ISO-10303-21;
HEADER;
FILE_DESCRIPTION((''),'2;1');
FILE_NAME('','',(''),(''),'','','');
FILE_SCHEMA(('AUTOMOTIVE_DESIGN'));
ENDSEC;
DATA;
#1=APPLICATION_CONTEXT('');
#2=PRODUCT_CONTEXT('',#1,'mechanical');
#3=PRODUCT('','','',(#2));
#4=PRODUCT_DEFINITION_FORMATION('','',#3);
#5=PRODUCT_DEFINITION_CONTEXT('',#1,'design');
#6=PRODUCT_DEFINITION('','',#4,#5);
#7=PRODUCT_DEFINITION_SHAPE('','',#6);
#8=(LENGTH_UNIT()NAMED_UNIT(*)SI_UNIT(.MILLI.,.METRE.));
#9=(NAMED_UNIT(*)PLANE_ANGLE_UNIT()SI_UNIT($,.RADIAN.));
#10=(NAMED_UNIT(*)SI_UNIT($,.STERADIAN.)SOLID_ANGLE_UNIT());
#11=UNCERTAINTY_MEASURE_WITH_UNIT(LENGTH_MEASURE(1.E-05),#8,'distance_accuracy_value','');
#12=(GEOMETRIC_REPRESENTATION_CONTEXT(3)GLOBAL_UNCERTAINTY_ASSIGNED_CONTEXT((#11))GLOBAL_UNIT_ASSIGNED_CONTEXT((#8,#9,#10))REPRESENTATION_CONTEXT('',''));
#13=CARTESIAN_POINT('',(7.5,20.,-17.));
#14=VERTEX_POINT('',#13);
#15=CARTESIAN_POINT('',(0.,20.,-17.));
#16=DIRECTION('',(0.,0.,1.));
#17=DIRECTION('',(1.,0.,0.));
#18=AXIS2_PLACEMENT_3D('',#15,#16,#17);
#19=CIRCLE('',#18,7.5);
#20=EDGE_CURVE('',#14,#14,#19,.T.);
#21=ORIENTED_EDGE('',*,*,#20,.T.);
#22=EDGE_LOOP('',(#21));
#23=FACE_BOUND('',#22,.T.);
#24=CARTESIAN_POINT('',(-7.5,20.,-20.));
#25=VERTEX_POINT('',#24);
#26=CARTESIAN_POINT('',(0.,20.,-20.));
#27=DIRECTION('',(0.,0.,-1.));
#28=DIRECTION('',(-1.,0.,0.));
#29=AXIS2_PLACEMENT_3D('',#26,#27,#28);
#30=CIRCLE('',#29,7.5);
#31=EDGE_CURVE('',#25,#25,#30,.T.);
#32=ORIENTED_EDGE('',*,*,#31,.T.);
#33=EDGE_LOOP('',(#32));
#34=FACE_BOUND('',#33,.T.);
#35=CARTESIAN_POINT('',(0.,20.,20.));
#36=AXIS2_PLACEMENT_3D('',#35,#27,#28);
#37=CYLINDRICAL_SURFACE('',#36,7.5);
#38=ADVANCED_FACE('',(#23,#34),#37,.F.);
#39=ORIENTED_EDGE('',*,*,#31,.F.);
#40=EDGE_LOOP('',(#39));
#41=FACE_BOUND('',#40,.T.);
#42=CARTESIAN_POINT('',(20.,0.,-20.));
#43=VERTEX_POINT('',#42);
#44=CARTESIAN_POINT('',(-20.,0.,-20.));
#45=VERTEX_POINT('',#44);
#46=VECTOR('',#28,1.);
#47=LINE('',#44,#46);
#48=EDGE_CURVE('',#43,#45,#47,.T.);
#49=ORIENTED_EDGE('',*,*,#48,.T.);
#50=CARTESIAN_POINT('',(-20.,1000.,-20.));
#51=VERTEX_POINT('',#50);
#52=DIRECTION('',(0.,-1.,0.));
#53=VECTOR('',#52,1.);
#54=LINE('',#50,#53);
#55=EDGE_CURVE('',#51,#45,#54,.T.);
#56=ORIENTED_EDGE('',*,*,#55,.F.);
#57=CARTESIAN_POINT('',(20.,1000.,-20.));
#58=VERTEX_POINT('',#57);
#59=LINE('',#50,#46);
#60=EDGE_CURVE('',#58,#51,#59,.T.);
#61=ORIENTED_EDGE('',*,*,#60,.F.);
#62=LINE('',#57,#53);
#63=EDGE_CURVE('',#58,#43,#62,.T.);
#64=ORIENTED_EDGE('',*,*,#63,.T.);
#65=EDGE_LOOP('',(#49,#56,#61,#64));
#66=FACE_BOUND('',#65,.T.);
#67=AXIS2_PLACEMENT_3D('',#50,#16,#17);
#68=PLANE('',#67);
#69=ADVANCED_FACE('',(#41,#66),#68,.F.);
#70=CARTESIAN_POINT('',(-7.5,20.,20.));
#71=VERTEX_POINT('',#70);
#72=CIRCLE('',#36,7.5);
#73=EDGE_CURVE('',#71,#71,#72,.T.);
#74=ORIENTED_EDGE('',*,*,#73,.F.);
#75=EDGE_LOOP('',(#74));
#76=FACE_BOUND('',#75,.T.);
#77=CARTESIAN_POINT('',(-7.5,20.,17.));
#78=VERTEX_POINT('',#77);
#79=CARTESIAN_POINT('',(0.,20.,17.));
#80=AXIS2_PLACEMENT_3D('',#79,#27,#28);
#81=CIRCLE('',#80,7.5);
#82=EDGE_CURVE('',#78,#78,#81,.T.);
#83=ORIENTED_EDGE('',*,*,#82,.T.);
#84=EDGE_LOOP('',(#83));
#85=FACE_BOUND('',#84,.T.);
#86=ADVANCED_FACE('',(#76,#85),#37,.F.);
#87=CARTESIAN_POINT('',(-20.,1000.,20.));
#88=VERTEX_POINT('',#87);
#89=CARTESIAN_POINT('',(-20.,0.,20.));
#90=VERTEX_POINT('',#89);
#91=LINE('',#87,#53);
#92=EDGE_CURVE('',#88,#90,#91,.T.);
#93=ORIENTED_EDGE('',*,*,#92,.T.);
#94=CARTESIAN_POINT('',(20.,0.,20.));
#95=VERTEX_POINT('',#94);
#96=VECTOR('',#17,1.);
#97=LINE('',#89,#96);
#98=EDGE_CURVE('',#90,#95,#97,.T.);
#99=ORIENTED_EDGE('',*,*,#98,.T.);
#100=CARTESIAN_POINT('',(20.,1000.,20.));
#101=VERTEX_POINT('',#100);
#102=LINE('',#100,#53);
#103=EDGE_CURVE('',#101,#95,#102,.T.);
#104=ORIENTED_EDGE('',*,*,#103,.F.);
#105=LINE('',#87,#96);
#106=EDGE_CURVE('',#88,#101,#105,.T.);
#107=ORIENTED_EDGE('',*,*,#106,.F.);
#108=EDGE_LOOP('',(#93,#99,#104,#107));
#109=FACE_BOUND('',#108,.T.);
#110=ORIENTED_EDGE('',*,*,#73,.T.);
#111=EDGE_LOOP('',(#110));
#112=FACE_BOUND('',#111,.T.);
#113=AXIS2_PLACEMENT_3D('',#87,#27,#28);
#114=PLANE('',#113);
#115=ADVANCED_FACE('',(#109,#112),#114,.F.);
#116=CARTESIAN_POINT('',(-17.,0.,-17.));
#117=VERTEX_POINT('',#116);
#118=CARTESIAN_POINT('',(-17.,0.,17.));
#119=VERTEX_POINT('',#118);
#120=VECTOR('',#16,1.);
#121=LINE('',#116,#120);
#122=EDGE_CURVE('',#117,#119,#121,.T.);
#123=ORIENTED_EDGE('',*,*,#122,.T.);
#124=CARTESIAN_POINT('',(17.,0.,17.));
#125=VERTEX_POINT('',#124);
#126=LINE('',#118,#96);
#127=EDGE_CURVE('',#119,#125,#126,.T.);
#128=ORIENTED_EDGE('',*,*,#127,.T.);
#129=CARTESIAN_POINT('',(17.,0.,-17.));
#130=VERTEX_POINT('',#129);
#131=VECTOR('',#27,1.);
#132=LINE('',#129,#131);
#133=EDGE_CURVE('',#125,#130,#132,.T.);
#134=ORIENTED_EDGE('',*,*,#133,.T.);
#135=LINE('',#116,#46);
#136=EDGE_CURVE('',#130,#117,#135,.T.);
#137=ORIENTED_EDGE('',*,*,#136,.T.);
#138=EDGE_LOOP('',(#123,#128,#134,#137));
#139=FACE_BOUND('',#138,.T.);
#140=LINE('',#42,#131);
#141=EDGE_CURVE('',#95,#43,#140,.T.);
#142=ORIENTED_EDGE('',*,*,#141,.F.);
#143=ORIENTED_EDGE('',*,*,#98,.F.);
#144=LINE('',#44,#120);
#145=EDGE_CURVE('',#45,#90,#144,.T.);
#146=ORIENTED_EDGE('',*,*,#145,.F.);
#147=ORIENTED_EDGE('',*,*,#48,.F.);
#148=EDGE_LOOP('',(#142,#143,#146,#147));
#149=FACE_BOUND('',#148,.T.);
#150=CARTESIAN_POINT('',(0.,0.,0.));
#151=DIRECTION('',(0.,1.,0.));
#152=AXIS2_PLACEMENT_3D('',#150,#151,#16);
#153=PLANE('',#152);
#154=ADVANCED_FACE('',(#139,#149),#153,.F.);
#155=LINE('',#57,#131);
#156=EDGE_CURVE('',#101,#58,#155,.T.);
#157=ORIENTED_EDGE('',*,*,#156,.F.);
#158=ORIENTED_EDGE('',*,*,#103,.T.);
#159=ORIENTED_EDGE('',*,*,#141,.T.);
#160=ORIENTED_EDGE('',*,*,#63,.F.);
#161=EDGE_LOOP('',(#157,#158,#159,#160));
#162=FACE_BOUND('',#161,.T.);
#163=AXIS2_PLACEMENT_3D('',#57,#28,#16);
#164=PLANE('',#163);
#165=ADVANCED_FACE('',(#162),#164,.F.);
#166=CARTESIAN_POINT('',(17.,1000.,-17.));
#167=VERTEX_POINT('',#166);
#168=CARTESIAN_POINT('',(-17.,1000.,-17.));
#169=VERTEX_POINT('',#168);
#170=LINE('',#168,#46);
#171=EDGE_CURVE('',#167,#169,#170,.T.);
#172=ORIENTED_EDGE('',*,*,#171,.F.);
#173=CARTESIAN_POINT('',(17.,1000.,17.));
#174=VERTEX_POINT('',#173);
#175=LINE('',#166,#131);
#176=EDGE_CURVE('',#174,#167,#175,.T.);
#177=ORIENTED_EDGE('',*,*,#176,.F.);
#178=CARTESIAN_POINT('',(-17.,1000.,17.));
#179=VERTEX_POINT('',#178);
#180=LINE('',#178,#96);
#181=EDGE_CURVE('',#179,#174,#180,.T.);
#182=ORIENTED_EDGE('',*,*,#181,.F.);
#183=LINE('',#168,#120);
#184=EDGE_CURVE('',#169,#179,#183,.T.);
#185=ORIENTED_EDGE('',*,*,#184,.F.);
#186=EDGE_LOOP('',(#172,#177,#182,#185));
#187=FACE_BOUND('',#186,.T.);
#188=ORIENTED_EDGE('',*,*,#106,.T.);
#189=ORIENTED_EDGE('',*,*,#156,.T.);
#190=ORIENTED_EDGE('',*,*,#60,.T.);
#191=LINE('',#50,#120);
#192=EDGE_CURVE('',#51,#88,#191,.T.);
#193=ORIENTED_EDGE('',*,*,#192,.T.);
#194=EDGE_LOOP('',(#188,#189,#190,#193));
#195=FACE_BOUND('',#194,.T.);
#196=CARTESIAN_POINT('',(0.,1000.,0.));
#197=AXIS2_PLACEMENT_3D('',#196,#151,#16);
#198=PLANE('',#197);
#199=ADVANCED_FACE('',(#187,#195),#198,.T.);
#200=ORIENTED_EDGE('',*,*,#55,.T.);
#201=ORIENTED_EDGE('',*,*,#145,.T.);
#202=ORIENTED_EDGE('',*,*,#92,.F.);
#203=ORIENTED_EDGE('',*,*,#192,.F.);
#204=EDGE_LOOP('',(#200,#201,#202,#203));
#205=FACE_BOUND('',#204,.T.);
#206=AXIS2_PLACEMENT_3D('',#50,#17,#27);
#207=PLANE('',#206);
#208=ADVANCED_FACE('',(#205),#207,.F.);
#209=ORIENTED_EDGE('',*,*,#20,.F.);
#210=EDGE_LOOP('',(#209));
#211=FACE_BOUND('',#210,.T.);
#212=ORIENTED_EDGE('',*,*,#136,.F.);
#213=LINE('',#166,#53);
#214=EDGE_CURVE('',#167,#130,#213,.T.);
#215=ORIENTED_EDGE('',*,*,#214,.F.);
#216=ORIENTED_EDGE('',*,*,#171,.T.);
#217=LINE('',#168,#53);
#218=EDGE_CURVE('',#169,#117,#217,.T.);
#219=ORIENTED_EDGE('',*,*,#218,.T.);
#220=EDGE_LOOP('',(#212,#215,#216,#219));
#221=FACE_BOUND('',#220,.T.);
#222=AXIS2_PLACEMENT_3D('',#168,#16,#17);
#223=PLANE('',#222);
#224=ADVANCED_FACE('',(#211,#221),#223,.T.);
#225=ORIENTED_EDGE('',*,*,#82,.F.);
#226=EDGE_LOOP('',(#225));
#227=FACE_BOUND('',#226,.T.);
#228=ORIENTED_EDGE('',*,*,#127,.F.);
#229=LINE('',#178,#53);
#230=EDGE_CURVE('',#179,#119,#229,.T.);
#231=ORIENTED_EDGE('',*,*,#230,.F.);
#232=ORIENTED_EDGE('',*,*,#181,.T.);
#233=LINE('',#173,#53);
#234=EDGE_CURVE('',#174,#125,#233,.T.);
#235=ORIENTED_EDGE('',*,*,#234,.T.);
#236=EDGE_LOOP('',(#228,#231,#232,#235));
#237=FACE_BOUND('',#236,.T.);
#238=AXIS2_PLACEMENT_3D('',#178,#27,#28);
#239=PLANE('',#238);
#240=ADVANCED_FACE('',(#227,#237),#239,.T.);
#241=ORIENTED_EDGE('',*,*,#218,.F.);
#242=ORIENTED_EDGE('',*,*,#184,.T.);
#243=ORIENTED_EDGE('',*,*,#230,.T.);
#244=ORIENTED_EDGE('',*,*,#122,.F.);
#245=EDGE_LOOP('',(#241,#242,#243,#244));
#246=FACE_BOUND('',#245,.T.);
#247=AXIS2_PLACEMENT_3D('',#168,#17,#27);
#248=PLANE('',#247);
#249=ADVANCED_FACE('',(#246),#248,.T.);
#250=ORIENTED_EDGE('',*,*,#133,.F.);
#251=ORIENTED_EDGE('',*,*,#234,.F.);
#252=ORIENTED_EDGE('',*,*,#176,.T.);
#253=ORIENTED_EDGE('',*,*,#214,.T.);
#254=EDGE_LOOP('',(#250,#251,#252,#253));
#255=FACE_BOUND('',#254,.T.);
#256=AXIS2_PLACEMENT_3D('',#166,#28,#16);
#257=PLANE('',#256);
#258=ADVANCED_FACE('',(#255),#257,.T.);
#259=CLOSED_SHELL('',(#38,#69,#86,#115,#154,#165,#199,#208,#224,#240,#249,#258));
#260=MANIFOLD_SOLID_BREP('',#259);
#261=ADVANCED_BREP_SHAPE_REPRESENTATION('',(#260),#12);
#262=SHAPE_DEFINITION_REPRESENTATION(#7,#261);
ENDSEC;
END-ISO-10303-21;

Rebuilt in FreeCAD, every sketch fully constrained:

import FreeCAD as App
import Part
import Sketcher

V = App.Vector

doc = App.newDocument("Part")
body = doc.addObject("PartDesign::Body", "Body")

# Sketch on XZ plane
sketch1 = body.newObject("Sketcher::SketchObject", "Sketch")
sketch1.AttachmentSupport = (doc.getObject("XZ_Plane"), [""])
sketch1.MapMode = "FlatFace"
sketch1.addGeometry(Part.LineSegment(V(-20, -20, 0), V(-20, 20, 0)), False)
sketch1.addGeometry(Part.LineSegment(V(-20, 20, 0), V(20, 20, 0)), False)
sketch1.addGeometry(Part.LineSegment(V(20, 20, 0), V(20, -20, 0)), False)
sketch1.addGeometry(Part.LineSegment(V(20, -20, 0), V(-20, -20, 0)), False)
sketch1.addGeometry(Part.LineSegment(V(17, 17, 0), V(-17, 17, 0)), False)
sketch1.addGeometry(Part.LineSegment(V(-17, 17, 0), V(-17, -17, 0)), False)
sketch1.addGeometry(Part.LineSegment(V(-17, -17, 0), V(17, -17, 0)), False)
sketch1.addGeometry(Part.LineSegment(V(17, -17, 0), V(17, 17, 0)), False)
sketch1.addConstraint(Sketcher.Constraint("Coincident", 0, 2, 1, 1))
sketch1.addConstraint(Sketcher.Constraint("Coincident", 1, 2, 2, 1))
sketch1.addConstraint(Sketcher.Constraint("Coincident", 2, 2, 3, 1))
sketch1.addConstraint(Sketcher.Constraint("Coincident", 3, 2, 0, 1))
sketch1.addConstraint(Sketcher.Constraint("Coincident", 4, 2, 5, 1))
sketch1.addConstraint(Sketcher.Constraint("Coincident", 5, 2, 6, 1))
sketch1.addConstraint(Sketcher.Constraint("Coincident", 6, 2, 7, 1))
sketch1.addConstraint(Sketcher.Constraint("Coincident", 7, 2, 4, 1))
sketch1.addConstraint(Sketcher.Constraint("Vertical", 0))
sketch1.addConstraint(Sketcher.Constraint("Horizontal", 1))
sketch1.addConstraint(Sketcher.Constraint("Vertical", 2))
sketch1.addConstraint(Sketcher.Constraint("Horizontal", 3))
sketch1.addConstraint(Sketcher.Constraint("Horizontal", 4))
sketch1.addConstraint(Sketcher.Constraint("Vertical", 5))
sketch1.addConstraint(Sketcher.Constraint("Horizontal", 6))
sketch1.addConstraint(Sketcher.Constraint("Vertical", 7))
sketch1.addConstraint(Sketcher.Constraint("Symmetric", 0, 2, 2, 2, -1, 1))
sketch1.addConstraint(Sketcher.Constraint("Symmetric", 4, 2, 6, 2, -1, 1))
sketch1.addConstraint(Sketcher.Constraint("Equal", 3, 0))
sketch1.addConstraint(Sketcher.Constraint("Equal", 6, 5))
sketch1.addConstraint(Sketcher.Constraint("DistanceX", 1, 1, 1, 2, 40.0))
sketch1.addConstraint(Sketcher.Constraint("DistanceX", 4, 2, 4, 1, 34.0))
pad1 = body.newObject("PartDesign::Pad", "Pad")
pad1.Profile = sketch1
pad1.Length = 1000
pad1.Reversed = True

# Sketch on XY plane
sketch2 = body.newObject("Sketcher::SketchObject", "Sketch001")
sketch2.AttachmentSupport = (doc.getObject("XY_Plane"), [""])
sketch2.MapMode = "FlatFace"
sketch2.AttachmentOffset = App.Placement(V(0, 0, -20), App.Rotation())
sketch2.addGeometry(Part.Circle(V(0, 20, 0), V(0, 0, 1), 7.5), False)
sketch2.addConstraint(Sketcher.Constraint("PointOnObject", 0, 3, -2))
sketch2.addConstraint(Sketcher.Constraint("Diameter", 0, 15.0))
sketch2.addConstraint(Sketcher.Constraint("DistanceY", -1, 1, 0, 3, 20.0))
pocket1 = body.newObject("PartDesign::Pocket", "Pocket")
pocket1.Profile = sketch2
pocket1.Type = "ThroughAll"
pocket1.Reversed = True

doc.recompute()
